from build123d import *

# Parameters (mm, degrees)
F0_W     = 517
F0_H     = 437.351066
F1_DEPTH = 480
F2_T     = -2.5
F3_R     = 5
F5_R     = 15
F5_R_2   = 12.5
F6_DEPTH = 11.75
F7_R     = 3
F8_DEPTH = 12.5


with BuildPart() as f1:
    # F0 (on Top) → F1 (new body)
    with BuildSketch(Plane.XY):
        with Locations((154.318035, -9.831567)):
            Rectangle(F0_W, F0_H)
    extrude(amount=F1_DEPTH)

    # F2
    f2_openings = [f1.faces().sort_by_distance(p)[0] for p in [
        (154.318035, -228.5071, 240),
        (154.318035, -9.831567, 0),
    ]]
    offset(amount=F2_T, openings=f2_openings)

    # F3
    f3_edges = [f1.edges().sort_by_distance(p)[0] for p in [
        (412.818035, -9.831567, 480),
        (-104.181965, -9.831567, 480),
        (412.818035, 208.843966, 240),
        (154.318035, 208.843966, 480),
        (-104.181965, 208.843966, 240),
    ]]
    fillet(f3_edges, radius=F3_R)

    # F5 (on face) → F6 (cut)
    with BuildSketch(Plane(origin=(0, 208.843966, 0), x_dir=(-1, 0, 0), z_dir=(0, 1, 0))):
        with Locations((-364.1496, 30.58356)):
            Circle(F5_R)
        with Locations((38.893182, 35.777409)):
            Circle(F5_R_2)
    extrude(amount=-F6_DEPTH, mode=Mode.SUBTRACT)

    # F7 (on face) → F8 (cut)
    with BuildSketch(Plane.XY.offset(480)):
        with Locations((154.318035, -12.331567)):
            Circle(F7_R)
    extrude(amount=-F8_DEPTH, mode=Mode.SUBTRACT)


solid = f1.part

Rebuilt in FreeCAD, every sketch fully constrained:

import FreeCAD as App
import Part
import Sketcher
Q = App.Units.Quantity


def edges_at(feature, points):
    """Names of the edges that pass closest to the given points."""
    edges = feature.Shape.Edges
    near = lambda p: min(range(len(edges)), key=lambda i: edges[i].distToShape(Part.Vertex(*p))[0])
    return sorted({f"Edge{near(p) + 1}" for p in points})


def faces_at(feature, points):
    """Names of the faces that lie closest to the given points."""
    faces = feature.Shape.Faces
    near = lambda p: min(range(len(faces)), key=lambda i: faces[i].distToShape(Part.Vertex(*p))[0])
    return sorted({f"Face{near(p) + 1}" for p in points})


def add_polygon(sketch, points):
    """Adds a closed chain of lines whose ends are joined by coincident constraints."""
    first, n = sketch.GeometryCount, len(points)
    for a, b in zip(points, points[1:] + points[:1]):
        sketch.addGeometry(Part.LineSegment(App.Vector(*a, 0), App.Vector(*b, 0)), False)
    for i in range(n):
        sketch.addConstraint(Sketcher.Constraint("Coincident", first + i, 2, first + (i + 1) % n, 1))

doc = App.newDocument("Part")
params = doc.addObject("Spreadsheet::Sheet", "Params")
for row, (alias, value) in enumerate([
    ("sketch1_width", "517 mm"),
    ("pad1_length", "480 mm"),
    ("thickness_wall", "2.5 mm"),
    ("fillet_radius", "5 mm"),
    ("sketch2_diameter", "30 mm"),
    ("sketch2_diameter2", "25 mm"),
    ("pocket1_length", "11.75 mm"),
    ("sketch3_diameter", "6 mm"),
    ("pocket2_length", "12.5 mm"),
], start=1):
    params.set(f"A{row}", alias)
    params.set(f"B{row}", "=" + value)
    params.setAlias(f"B{row}", alias)

body = doc.addObject("PartDesign::Body", "Body")

# Sketch on XY plane
sketch1 = doc.addObject("Sketcher::SketchObject", "Sketch")
body.addObject(sketch1)
sketch1.AttachmentSupport = (doc.XY_Plane, [""])
sketch1.MapMode = "FlatFace"
add_polygon(sketch1, [(-104, 209), (-104, -229), (413, -229), (413, 209)])  # lines 0-3
sketch1.addConstraint(Sketcher.Constraint("Vertical", 0))
sketch1.addConstraint(Sketcher.Constraint("Horizontal", 1))
sketch1.addConstraint(Sketcher.Constraint("Vertical", 2))
sketch1.addConstraint(Sketcher.Constraint("Horizontal", 3))
sketch1.addConstraint(Sketcher.Constraint("DistanceX", 1, 1, 1, 2, Q("517 mm")))
sketch1.addConstraint(Sketcher.Constraint("DistanceY", 0, 2, -1, 1, Q("228.5071 mm")))
sketch1.addConstraint(Sketcher.Constraint("DistanceY", 0, 2, 0, 1, Q("437.351066 mm")))
sketch1.addConstraint(Sketcher.Constraint("DistanceX", 0, 2, -1, 1, Q("104.181965 mm")))
sketch1.setExpression("Constraints[8]", "Params.sketch1_width")
pad1 = doc.addObject("PartDesign::Pad", "Pad")
body.addObject(pad1)
pad1.Profile = sketch1
pad1.setExpression("Length", "Params.pad1_length")
doc.recompute()

thickness = doc.addObject("PartDesign::Thickness", "Thickness")
body.addObject(thickness)
thickness.Base = (pad1, faces_at(pad1, [(154.318, -228.507, 240), (154.318, -9.832, 0)]))
thickness.setExpression("Value", "Params.thickness_wall")
thickness.Reversed = True
thickness.Join = "Arc"
doc.recompute()

fillet = doc.addObject("PartDesign::Fillet", "Fillet")
body.addObject(fillet)
fillet.Base = (thickness, edges_at(thickness, [
    (412.818, -9.832, 480),
    (-104.182, -9.832, 480),
    (412.818, 208.844, 240),
    (154.318, 208.844, 480),
    (-104.182, 208.844, 240),
]))
fillet.setExpression("Radius", "Params.fillet_radius")

# Sketch on XZ plane
sketch2 = doc.addObject("Sketcher::SketchObject", "Sketch001")
body.addObject(sketch2)
sketch2.AttachmentSupport = (doc.XZ_Plane, [""])
sketch2.MapMode = "FlatFace"
sketch2.AttachmentOffset = App.Placement(App.Vector(0, 0, -208.843966), App.Rotation())
sketch2.addGeometry(Part.Circle(App.Vector(364, 31, 0), App.Vector(0, 0, 1), 15), False)
sketch2.addGeometry(Part.Circle(App.Vector(-39, 36, 0), App.Vector(0, 0, 1), 12), False)
sketch2.addConstraint(Sketcher.Constraint("Diameter", 0, Q("30 mm")))
sketch2.addConstraint(Sketcher.Constraint("Diameter", 1, Q("25 mm")))
sketch2.addConstraint(Sketcher.Constraint("DistanceX", -1, 1, 0, 3, Q("364.1496 mm")))
sketch2.addConstraint(Sketcher.Constraint("DistanceY", -1, 1, 0, 3, Q("30.58356 mm")))
sketch2.addConstraint(Sketcher.Constraint("DistanceY", -1, 1, 1, 3, Q("35.777409 mm")))
sketch2.addConstraint(Sketcher.Constraint("DistanceX", 1, 3, -1, 1, Q("38.893182 mm")))
sketch2.setExpression("Constraints[0]", "Params.sketch2_diameter")
sketch2.setExpression("Constraints[1]", "Params.sketch2_diameter2")
pocket1 = doc.addObject("PartDesign::Pocket", "Pocket")
body.addObject(pocket1)
pocket1.Profile = sketch2
pocket1.setExpression("Length", "Params.pocket1_length")
pocket1.Reversed = True

# Sketch on XY plane
sketch3 = doc.addObject("Sketcher::SketchObject", "Sketch002")
body.addObject(sketch3)
sketch3.AttachmentSupport = (doc.XY_Plane, [""])
sketch3.MapMode = "FlatFace"
sketch3.AttachmentOffset = App.Placement(App.Vector(0, 0, 480), App.Rotation())
sketch3.addGeometry(Part.Circle(App.Vector(154.3, -12.3, 0), App.Vector(0, 0, 1), 3), False)
sketch3.addConstraint(Sketcher.Constraint("Diameter", 0, Q("6 mm")))
sketch3.addConstraint(Sketcher.Constraint("DistanceX", -1, 1, 0, 3, Q("154.318035 mm")))
sketch3.addConstraint(Sketcher.Constraint("DistanceY", 0, 3, -1, 1, Q("12.331567 mm")))
sketch3.setExpression("Constraints[0]", "Params.sketch3_diameter")
pocket2 = doc.addObject("PartDesign::Pocket", "Pocket001")
body.addObject(pocket2)
pocket2.Profile = sketch3
pocket2.setExpression("Length", "Params.pocket2_length")

doc.recompute()
